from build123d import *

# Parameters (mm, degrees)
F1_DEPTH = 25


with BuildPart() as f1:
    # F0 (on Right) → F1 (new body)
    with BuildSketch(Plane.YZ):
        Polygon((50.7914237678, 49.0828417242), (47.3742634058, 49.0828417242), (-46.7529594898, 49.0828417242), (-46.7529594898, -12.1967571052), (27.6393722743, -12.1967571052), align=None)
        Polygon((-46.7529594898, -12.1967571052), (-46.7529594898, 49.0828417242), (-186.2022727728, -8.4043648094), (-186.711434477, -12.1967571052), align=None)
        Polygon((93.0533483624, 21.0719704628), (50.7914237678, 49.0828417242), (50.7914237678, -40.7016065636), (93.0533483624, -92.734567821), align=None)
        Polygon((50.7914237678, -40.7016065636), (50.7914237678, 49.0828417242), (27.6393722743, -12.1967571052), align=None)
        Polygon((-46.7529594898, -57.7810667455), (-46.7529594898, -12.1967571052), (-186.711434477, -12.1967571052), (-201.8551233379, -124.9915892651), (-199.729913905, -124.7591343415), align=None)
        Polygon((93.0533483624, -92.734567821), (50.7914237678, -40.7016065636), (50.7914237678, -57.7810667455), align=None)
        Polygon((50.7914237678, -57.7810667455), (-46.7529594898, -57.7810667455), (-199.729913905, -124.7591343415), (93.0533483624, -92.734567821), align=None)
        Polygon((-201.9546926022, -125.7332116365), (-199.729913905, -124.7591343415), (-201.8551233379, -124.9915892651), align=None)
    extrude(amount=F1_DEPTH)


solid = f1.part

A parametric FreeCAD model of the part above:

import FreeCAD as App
import Part
import Sketcher

doc = App.newDocument("Part")
body = doc.addObject("PartDesign::Body", "Body")

sketch1 = doc.addObject("Sketcher::SketchObject", "Sketch")
body.addObject(sketch1)
sketch1.AttachmentSupport = (doc.YZ_Plane, [""])
sketch1.MapMode = "FlatFace"
sketch1.addGeometry([
    Part.LineSegment(App.Vector(50.8, 49.1, 0), App.Vector(-46.8, 49.1, 0)),
    Part.LineSegment(App.Vector(-46.8, 49.1, 0), App.Vector(-186.2, -8.4, 0)),
    Part.LineSegment(App.Vector(-186.2, -8.4, 0), App.Vector(-186.7, -12.2, 0)),
    Part.LineSegment(App.Vector(-186.7, -12.2, 0), App.Vector(-201.9, -125, 0)),
    Part.LineSegment(App.Vector(-201.9, -125, 0), App.Vector(-202, -125.7, 0)),
    Part.LineSegment(App.Vector(-202, -125.7, 0), App.Vector(-199.7, -124.8, 0)),
    Part.LineSegment(App.Vector(-199.7, -124.8, 0), App.Vector(93.1, -92.7, 0)),
    Part.LineSegment(App.Vector(93.1, -92.7, 0), App.Vector(93.1, 21.1, 0)),
    Part.LineSegment(App.Vector(93.1, 21.1, 0), App.Vector(50.8, 49.1, 0)),
    Part.LineSegment(App.Vector(-46.8, -57.8, 0), App.Vector(-46.8, -12.2, 0)),
    Part.LineSegment(App.Vector(-46.8, -12.2, 0), App.Vector(27.6, -12.2, 0)),
    Part.LineSegment(App.Vector(27.6, -12.2, 0), App.Vector(50.8, -40.7, 0)),
    Part.LineSegment(App.Vector(50.8, -40.7, 0), App.Vector(50.8, -57.8, 0)),
    Part.LineSegment(App.Vector(50.8, -57.8, 0), App.Vector(-46.8, -57.8, 0)),
], False)
sketch1.addConstraint([
    Sketcher.Constraint("Coincident", 0, 2, 1, 1),
    Sketcher.Constraint("Coincident", 1, 2, 2, 1),
    Sketcher.Constraint("Coincident", 2, 2, 3, 1),
    Sketcher.Constraint("Coincident", 3, 2, 4, 1),
    Sketcher.Constraint("Coincident", 4, 2, 5, 1),
    Sketcher.Constraint("Coincident", 5, 2, 6, 1),
    Sketcher.Constraint("Coincident", 6, 2, 7, 1),
    Sketcher.Constraint("Coincident", 7, 2, 8, 1),
    Sketcher.Constraint("Coincident", 8, 2, 0, 1),
    Sketcher.Constraint("Coincident", 9, 2, 10, 1),
    Sketcher.Constraint("Coincident", 10, 2, 11, 1),
    Sketcher.Constraint("Coincident", 11, 2, 12, 1),
    Sketcher.Constraint("Coincident", 12, 2, 13, 1),
    Sketcher.Constraint("Coincident", 13, 2, 9, 1),
    Sketcher.Constraint("Horizontal", 0),
    Sketcher.Constraint("Vertical", 7),
    Sketcher.Constraint("Vertical", 9),
    Sketcher.Constraint("Horizontal", 10),
    Sketcher.Constraint("Vertical", 12),
    Sketcher.Constraint("Horizontal", 13),
    Sketcher.Constraint("Parallel", 2, 3),
    Sketcher.Constraint("Parallel", 3, 4),
    Sketcher.Constraint("Horizontal", 2, 2, 9, 2),
    Sketcher.Constraint("Vertical", 0, 2, 9, 2),
    Sketcher.Constraint("Vertical", 8, 2, 11, 2),
    Sketcher.Constraint("DistanceX", 10, 1, 10, 2, 74.392332),
    Sketcher.Constraint("DistanceY", 7, 1, 7, 2, 113.806538),
    Sketcher.Constraint("DistanceY", 9, 1, 9, 2, 45.58431),
    Sketcher.Constraint("DistanceY", 12, 2, 12, 1, 17.07946),
    Sketcher.Constraint("DistanceY", 2, 2, 0, 2, 61.279599),
    Sketcher.Constraint("DistanceY", 6, 2, 12, 2, 34.953501),
    Sketcher.Constraint("Distance", 1, 150.833981),
    Sketcher.Constraint("Distance", 2, 3.826419),
    Sketcher.Constraint("DistanceX", 0, 2, 0, 1, 97.544383),
    Sketcher.Constraint("DistanceX", 0, 2, -1, 1, 46.752959),
    Sketcher.Constraint("DistanceY", -1, 1, 0, 2, 49.082842),
    Sketcher.Constraint("DistanceY", 3, 2, -1, 1, 124.991589),
    Sketcher.Constraint("DistanceY", 4, 2, -1, 1, 125.733212),
    Sketcher.Constraint("DistanceX", -1, 1, 6, 2, 93.053348),
    Sketcher.Constraint("DistanceX", 2, 2, 1, 2, 0.509162),
    Sketcher.Constraint("DistanceX", 3, 2, 5, 2, 2.125209),
    Sketcher.Constraint("DistanceY", 5, 2, 1, 2, 116.35477),
])
pad1 = doc.addObject("PartDesign::Pad", "Pad")
body.addObject(pad1)
pad1.Profile = sketch1
pad1.Length = 25

doc.recompute()
